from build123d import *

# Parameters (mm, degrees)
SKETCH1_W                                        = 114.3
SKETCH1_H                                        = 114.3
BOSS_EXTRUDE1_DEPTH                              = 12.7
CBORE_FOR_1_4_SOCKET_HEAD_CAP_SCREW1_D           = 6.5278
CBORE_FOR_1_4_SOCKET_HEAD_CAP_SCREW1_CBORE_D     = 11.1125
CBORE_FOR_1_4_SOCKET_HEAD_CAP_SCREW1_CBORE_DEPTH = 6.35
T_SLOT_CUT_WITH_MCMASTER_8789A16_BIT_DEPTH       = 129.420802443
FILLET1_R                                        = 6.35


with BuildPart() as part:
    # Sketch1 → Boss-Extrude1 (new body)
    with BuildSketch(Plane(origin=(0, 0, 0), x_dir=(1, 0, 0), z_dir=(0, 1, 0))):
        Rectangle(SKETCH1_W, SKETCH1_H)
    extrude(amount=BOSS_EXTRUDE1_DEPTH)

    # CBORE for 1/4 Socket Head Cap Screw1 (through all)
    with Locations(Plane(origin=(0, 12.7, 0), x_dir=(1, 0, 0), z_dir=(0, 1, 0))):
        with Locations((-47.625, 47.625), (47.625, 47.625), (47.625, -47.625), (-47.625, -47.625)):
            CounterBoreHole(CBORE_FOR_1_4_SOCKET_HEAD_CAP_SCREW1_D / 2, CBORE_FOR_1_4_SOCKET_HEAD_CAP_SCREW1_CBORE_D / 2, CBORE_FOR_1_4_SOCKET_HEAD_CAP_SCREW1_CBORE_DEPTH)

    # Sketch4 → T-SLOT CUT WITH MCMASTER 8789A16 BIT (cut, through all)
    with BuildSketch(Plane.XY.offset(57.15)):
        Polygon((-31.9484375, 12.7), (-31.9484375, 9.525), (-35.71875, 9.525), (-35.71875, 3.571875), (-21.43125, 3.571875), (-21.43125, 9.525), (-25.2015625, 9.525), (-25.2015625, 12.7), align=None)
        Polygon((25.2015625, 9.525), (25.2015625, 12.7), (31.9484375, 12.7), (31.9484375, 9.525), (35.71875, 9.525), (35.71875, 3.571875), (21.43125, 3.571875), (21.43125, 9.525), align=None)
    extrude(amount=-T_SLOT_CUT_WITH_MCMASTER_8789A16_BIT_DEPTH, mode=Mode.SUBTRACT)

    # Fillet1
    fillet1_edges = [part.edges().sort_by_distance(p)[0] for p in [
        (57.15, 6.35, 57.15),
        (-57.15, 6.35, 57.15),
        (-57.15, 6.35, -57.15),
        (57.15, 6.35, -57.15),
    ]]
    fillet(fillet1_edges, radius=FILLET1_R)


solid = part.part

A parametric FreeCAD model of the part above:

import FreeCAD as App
import Part
import Sketcher

V = App.Vector
Q = App.Units.Quantity


def edges_at(feature, points):
    """Names of the edges that pass closest to the given points."""
    edges = feature.Shape.Edges
    near = lambda p: min(range(len(edges)), key=lambda i: edges[i].distToShape(Part.Vertex(*p))[0])
    return sorted({f"Edge{near(p) + 1}" for p in points})


def add_polygon(sketch, points):
    """Adds a closed chain of lines whose ends are joined by coincident constraints."""
    first, n = sketch.GeometryCount, len(points)
    for a, b in zip(points, points[1:] + points[:1]):
        sketch.addGeometry(Part.LineSegment(App.Vector(*a, 0), App.Vector(*b, 0)), False)
    for i in range(n):
        sketch.addConstraint(Sketcher.Constraint("Coincident", first + i, 2, first + (i + 1) % n, 1))

doc = App.newDocument("Part")
body = doc.addObject("PartDesign::Body", "Body")

sketch1 = body.newObject("Sketcher::SketchObject", "Sketch")
sketch1.AttachmentSupport = (doc.getObject("XZ_Plane"), [""])
sketch1.MapMode = "FlatFace"
add_polygon(sketch1, [(-57, -57), (-57, 57), (57, 57), (57, -57)])
sketch1.addConstraint([
    Sketcher.Constraint("Vertical", 0),
    Sketcher.Constraint("Horizontal", 1),
    Sketcher.Constraint("Vertical", 2),
    Sketcher.Constraint("Horizontal", 3),
    Sketcher.Constraint("Symmetric", 0, 2, 2, 2, -1, 1),
    Sketcher.Constraint("Equal", 3, 0),
    Sketcher.Constraint("DistanceX", 1, 1, 1, 2, Q("4.5 in")),
])
pad1 = body.newObject("PartDesign::Pad", "Pad")
pad1.Profile = sketch1
pad1.Length = Q("0.5 in")
pad1.Reversed = True

sketch2 = body.newObject("Sketcher::SketchObject", "Sketch001")
sketch2.AttachmentSupport = (doc.getObject("XZ_Plane"), [""])
sketch2.MapMode = "FlatFace"
sketch2.AttachmentOffset = App.Placement(V(0, 0, -0.5 * 25.4), App.Rotation())
sketch2.addGeometry([
    Part.Circle(V(-47.6, -47.6, 0), V(0, 0, 1), 3.3),
    Part.Circle(V(47.6, -47.6, 0), V(0, 0, 1), 3.3),
    Part.Circle(V(47.6, 47.6, 0), V(0, 0, 1), 3.3),
    Part.Circle(V(-47.6, 47.6, 0), V(0, 0, 1), 3.3),
], False)
sketch2.addConstraint([
    Sketcher.Constraint("Equal", 0, 1),
    Sketcher.Constraint("Equal", 1, 2),
    Sketcher.Constraint("Equal", 2, 3),
    Sketcher.Constraint("Symmetric", 0, 3, 2, 3, -1, 1),
    Sketcher.Constraint("Symmetric", 1, 3, 3, 3, -1, 1),
    Sketcher.Constraint("Symmetric", 0, 3, 1, 3, -2),
    Sketcher.Constraint("Diameter", 0, Q("0.257 in")),
    Sketcher.Constraint("DistanceX", 0, 3, 1, 3, Q("3.75 in")),
    Sketcher.Constraint("DistanceY", 1, 3, 2, 3, Q("3.75 in")),
])
doc.recompute()
hole = body.newObject("PartDesign::Hole", "Hole")
hole.Profile = sketch2
hole.ThreadType = "None"
hole.Diameter = Q("0.257 in")
hole.DepthType = "ThroughAll"
hole.HoleCutType = "Counterbore"
hole.HoleCutDiameter = Q("0.4375 in")
hole.HoleCutDepth = Q("0.25 in")
hole.Reversed = True

sketch3 = body.newObject("Sketcher::SketchObject", "Sketch002")
sketch3.AttachmentSupport = (doc.getObject("XY_Plane"), [""])
sketch3.MapMode = "FlatFace"
sketch3.AttachmentOffset = App.Placement(V(0, 0, 2.25 * 25.4), App.Rotation())
add_polygon(sketch3, [(-31.9, 12.7), (-31.9, 9.5), (-35.7, 9.5), (-35.7, 3.6), (-21.4, 3.6), (-21.4, 9.5), (-25.2, 9.5), (-25.2, 12.7)])
add_polygon(sketch3, [(25.2, 12.7), (25.2, 9.5), (21.4, 9.5), (21.4, 3.6), (35.7, 3.6), (35.7, 9.5), (31.9, 9.5), (31.9, 12.7)])
sketch3.addConstraint([
    Sketcher.Constraint("Vertical", 0),
    Sketcher.Constraint("Horizontal", 1),
    Sketcher.Constraint("Vertical", 2),
    Sketcher.Constraint("Horizontal", 3),
    Sketcher.Constraint("Vertical", 4),
    Sketcher.Constraint("Horizontal", 5),
    Sketcher.Constraint("Vertical", 6),
    Sketcher.Constraint("Horizontal", 7),
    Sketcher.Constraint("Vertical", 8),
    Sketcher.Constraint("Horizontal", 9),
    Sketcher.Constraint("Vertical", 10),
    Sketcher.Constraint("Horizontal", 11),
    Sketcher.Constraint("Vertical", 12),
    Sketcher.Constraint("Horizontal", 13),
    Sketcher.Constraint("Vertical", 14),
    Sketcher.Constraint("Horizontal", 15),
    Sketcher.Constraint("Symmetric", 5, 2, 8, 2, -2),
    Sketcher.Constraint("Symmetric", 3, 2, 10, 2, -2),
    Sketcher.Constraint("Symmetric", 1, 2, 12, 2, -2),
    Sketcher.Constraint("Symmetric", 7, 2, 14, 2, -2),
    Sketcher.Constraint("Horizontal", 1, 2, 4, 2),
    Sketcher.Constraint("Equal", 1, 5),
    Sketcher.Constraint("DistanceY", -1, 1, 6, 2, Q("0.5 in")),
    Sketcher.Constraint("DistanceX", 3, 1, 3, 2, Q("0.5625 in")),
    Sketcher.Constraint("DistanceX", 7, 2, 7, 1, Q("0.265625 in")),
    Sketcher.Constraint("DistanceY", 0, 2, 0, 1, Q("0.125 in")),
    Sketcher.Constraint("DistanceY", 2, 2, 2, 1, Q("0.234375 in")),
    Sketcher.Constraint("DistanceX", 0, 2, 8, 2, Q("2.25 in")),
])
pocket1 = body.newObject("PartDesign::Pocket", "Pocket")
pocket1.Profile = sketch3
pocket1.Type = "ThroughAll"
doc.recompute()

fillet = body.newObject("PartDesign::Fillet", "Fillet")
fillet.Base = (pocket1, edges_at(pocket1, [
    (57.15, 6.35, 57.15),
    (-57.15, 6.35, 57.15),
    (-57.15, 6.35, -57.15),
    (57.15, 6.35, -57.15),
]))
fillet.Radius = Q("0.25 in")

doc.recompute()
